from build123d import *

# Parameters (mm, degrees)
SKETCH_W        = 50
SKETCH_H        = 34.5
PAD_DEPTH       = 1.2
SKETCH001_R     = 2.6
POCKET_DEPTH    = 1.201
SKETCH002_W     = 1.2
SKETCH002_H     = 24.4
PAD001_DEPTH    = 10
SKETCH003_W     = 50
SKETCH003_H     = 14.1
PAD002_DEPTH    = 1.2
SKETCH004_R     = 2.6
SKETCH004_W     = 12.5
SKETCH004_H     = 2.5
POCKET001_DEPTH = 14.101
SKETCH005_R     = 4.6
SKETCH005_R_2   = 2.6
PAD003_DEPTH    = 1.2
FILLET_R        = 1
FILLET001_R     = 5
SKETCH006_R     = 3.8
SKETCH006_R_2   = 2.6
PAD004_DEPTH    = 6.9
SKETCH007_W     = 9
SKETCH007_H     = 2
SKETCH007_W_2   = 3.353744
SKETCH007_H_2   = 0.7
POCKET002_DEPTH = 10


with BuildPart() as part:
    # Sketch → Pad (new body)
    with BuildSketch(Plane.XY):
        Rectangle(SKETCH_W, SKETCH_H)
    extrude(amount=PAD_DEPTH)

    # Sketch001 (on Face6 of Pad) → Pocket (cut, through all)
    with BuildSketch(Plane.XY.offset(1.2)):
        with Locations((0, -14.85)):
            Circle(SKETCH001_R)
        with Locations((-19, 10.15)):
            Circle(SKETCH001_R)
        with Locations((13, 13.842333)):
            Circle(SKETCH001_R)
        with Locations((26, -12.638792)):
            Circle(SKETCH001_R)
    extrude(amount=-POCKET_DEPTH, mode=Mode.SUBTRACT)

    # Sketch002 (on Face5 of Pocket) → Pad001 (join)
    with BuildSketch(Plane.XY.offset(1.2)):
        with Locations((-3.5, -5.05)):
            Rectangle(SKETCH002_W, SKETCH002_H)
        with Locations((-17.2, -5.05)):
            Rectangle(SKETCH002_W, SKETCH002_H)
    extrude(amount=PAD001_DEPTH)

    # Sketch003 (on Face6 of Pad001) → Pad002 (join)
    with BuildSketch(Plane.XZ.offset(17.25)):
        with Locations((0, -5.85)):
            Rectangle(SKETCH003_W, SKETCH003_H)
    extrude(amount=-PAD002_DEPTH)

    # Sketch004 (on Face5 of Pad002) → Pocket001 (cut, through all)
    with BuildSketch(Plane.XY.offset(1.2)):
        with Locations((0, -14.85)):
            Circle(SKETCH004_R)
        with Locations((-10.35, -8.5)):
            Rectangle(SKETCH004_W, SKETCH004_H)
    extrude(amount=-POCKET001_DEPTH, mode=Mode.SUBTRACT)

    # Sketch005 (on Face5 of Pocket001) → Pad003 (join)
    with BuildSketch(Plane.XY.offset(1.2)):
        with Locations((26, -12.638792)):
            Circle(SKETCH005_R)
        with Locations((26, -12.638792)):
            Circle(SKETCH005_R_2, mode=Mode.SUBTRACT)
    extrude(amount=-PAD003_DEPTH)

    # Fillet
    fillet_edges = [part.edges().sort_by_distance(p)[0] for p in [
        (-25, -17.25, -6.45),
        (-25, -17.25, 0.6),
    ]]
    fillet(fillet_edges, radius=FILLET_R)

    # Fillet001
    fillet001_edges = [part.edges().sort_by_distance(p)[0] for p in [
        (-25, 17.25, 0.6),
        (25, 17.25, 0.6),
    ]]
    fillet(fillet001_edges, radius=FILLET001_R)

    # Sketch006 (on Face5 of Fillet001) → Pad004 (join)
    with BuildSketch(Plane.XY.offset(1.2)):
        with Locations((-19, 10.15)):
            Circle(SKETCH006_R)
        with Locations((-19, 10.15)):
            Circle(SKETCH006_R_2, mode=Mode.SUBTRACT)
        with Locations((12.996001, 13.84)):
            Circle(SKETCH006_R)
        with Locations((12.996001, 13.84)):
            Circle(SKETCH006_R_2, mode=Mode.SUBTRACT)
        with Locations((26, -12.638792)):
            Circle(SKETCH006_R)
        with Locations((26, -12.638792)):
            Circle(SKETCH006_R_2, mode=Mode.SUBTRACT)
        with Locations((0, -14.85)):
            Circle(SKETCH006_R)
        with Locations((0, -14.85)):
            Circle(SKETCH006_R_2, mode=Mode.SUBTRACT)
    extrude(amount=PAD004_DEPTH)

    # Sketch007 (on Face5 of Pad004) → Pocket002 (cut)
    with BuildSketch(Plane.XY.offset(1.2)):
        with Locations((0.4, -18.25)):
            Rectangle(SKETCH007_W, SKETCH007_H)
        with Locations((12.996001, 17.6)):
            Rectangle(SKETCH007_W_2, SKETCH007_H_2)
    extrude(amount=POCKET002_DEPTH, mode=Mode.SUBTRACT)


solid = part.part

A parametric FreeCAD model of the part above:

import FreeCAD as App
import Part
import Sketcher
Q = App.Units.Quantity


def edges_at(feature, points):
    """Names of the edges that pass closest to the given points."""
    edges = feature.Shape.Edges
    near = lambda p: min(range(len(edges)), key=lambda i: edges[i].distToShape(Part.Vertex(*p))[0])
    return sorted({f"Edge{near(p) + 1}" for p in points})


def add_polygon(sketch, points):
    """Adds a closed chain of lines whose ends are joined by coincident constraints."""
    first, n = sketch.GeometryCount, len(points)
    for a, b in zip(points, points[1:] + points[:1]):
        sketch.addGeometry(Part.LineSegment(App.Vector(*a, 0), App.Vector(*b, 0)), False)
    for i in range(n):
        sketch.addConstraint(Sketcher.Constraint("Coincident", first + i, 2, first + (i + 1) % n, 1))

doc = App.newDocument("Part")
body = doc.addObject("PartDesign::Body", "Body")

# Sketch on XY plane
sketch1 = doc.addObject("Sketcher::SketchObject", "Sketch")
body.addObject(sketch1)
sketch1.AttachmentSupport = (doc.XY_Plane, [""])
sketch1.MapMode = "FlatFace"
add_polygon(sketch1, [(-25, 17), (-25, -17), (25, -17), (25, 17)])  # lines 0-3
sketch1.addConstraint([
    Sketcher.Constraint("Vertical", 0),
    Sketcher.Constraint("Horizontal", 1),
    Sketcher.Constraint("Vertical", 2),
    Sketcher.Constraint("Horizontal", 3),
    Sketcher.Constraint("Symmetric", 0, 2, 2, 2, -1, 1),
    Sketcher.Constraint("DistanceX", 1, 1, 1, 2, Q("50 mm")),
    Sketcher.Constraint("DistanceY", 0, 2, 0, 1, Q("34.5 mm")),
])
pad1 = doc.addObject("PartDesign::Pad", "Pad")
body.addObject(pad1)
pad1.Profile = sketch1
pad1.Length = 1.2

# Sketch on XY plane
sketch2 = doc.addObject("Sketcher::SketchObject", "Sketch001")
body.addObject(sketch2)
sketch2.AttachmentSupport = (doc.XY_Plane, [""])
sketch2.MapMode = "FlatFace"
sketch2.AttachmentOffset = App.Placement(App.Vector(0, 0, 1.2), App.Rotation())
sketch2.addGeometry([
    Part.Circle(App.Vector(0, -14.8, 0), App.Vector(0, 0, 1), 2.6),
    Part.Circle(App.Vector(-19, 10.2, 0), App.Vector(0, 0, 1), 2.6),
    Part.Circle(App.Vector(13, 13.8, 0), App.Vector(0, 0, 1), 2.6),
    Part.Circle(App.Vector(26, -12.6, 0), App.Vector(0, 0, 1), 2.6),
], False)
sketch2.addConstraint([
    Sketcher.Constraint("Equal", 0, 1),
    Sketcher.Constraint("Equal", 1, 2),
    Sketcher.Constraint("Equal", 2, 3),
    Sketcher.Constraint("PointOnObject", 0, 3, -2),
    Sketcher.Constraint("Diameter", 0, Q("5.2 mm")),
    Sketcher.Constraint("DistanceX", 1, 3, -1, 1, Q("19 mm")),
    Sketcher.Constraint("DistanceX", -1, 1, 2, 3, Q("13 mm")),
    Sketcher.Constraint("DistanceX", -1, 1, 3, 3, Q("26 mm")),
    Sketcher.Constraint("DistanceY", 0, 3, 1, 3, Q("25 mm")),
    Sketcher.Constraint("DistanceY", 0, 3, -1, 1, Q("14.85 mm")),
    Sketcher.Constraint("DistanceY", -1, 1, 2, 3, Q("13.842333 mm")),
    Sketcher.Constraint("DistanceY", 3, 3, -1, 1, Q("12.638792 mm")),
])
pocket1 = doc.addObject("PartDesign::Pocket", "Pocket")
body.addObject(pocket1)
pocket1.Profile = sketch2
pocket1.Type = "ThroughAll"

# Sketch on XY plane
sketch3 = doc.addObject("Sketcher::SketchObject", "Sketch002")
body.addObject(sketch3)
sketch3.AttachmentSupport = (doc.XY_Plane, [""])
sketch3.MapMode = "FlatFace"
sketch3.AttachmentOffset = App.Placement(App.Vector(0, 0, 1.2), App.Rotation())
add_polygon(sketch3, [(-4.1, 7.2), (-4.1, -17.2), (-2.9, -17.2), (-2.9, 7.2)])  # lines 0-3
add_polygon(sketch3, [(-17.8, 7.2), (-17.8, -17.2), (-16.6, -17.2), (-16.6, 7.2)])  # lines 4-7
sketch3.addConstraint([
    Sketcher.Constraint("Vertical", 0),
    Sketcher.Constraint("Horizontal", 1),
    Sketcher.Constraint("Vertical", 2),
    Sketcher.Constraint("Horizontal", 3),
    Sketcher.Constraint("Vertical", 4),
    Sketcher.Constraint("Horizontal", 5),
    Sketcher.Constraint("Vertical", 6),
    Sketcher.Constraint("Horizontal", 7),
    Sketcher.Constraint("Horizontal", 1, 2, 4, 2),
    Sketcher.Constraint("Horizontal", 3, 2, 6, 2),
    Sketcher.Constraint("Equal", 3, 5),
    Sketcher.Constraint("DistanceX", 1, 1, 1, 2, Q("1.2 mm")),
    Sketcher.Constraint("DistanceY", 0, 2, 0, 1, Q("24.4 mm")),
    Sketcher.Constraint("DistanceX", 0, 2, -1, 1, Q("4.1 mm")),
    Sketcher.Constraint("DistanceX", 4, 2, -1, 1, Q("17.8 mm")),
    Sketcher.Constraint("DistanceY", 0, 2, -1, 1, Q("17.25 mm")),
])
pad2 = doc.addObject("PartDesign::Pad", "Pad001")
body.addObject(pad2)
pad2.Profile = sketch3
pad2.Length = 10

# Sketch on XZ plane
sketch4 = doc.addObject("Sketcher::SketchObject", "Sketch003")
body.addObject(sketch4)
sketch4.AttachmentSupport = (doc.XZ_Plane, [""])
sketch4.MapMode = "FlatFace"
sketch4.AttachmentOffset = App.Placement(App.Vector(0, 0, 17.25), App.Rotation())
add_polygon(sketch4, [(-25, 1), (-25, -13), (25, -13), (25, 1)])  # lines 0-3
sketch4.addConstraint([
    Sketcher.Constraint("Vertical", 0),
    Sketcher.Constraint("Horizontal", 1),
    Sketcher.Constraint("Vertical", 2),
    Sketcher.Constraint("Horizontal", 3),
    Sketcher.Constraint("DistanceX", 1, 1, 1, 2, Q("50 mm")),
    Sketcher.Constraint("DistanceY", 0, 2, 0, 1, Q("14.1 mm")),
    Sketcher.Constraint("DistanceX", 0, 2, -1, 1, Q("25 mm")),
    Sketcher.Constraint("DistanceY", 0, 2, -1, 1, Q("12.9 mm")),
])
pad3 = doc.addObject("PartDesign::Pad", "Pad002")
body.addObject(pad3)
pad3.Profile = sketch4
pad3.Length = 1.2
pad3.Reversed = True

# Sketch on XY plane
sketch5 = doc.addObject("Sketcher::SketchObject", "Sketch004")
body.addObject(sketch5)
sketch5.AttachmentSupport = (doc.XY_Plane, [""])
sketch5.MapMode = "FlatFace"
sketch5.AttachmentOffset = App.Placement(App.Vector(0, 0, 1.2), App.Rotation())
sketch5.addGeometry(Part.Circle(App.Vector(0, -14.8, 0), App.Vector(0, 0, 1), 2.6), False)  # 0
add_polygon(sketch5, [(-16.6, -7.2), (-16.6, -9.8), (-4.1, -9.8), (-4.1, -7.2)])  # lines 1-4
sketch5.addConstraint([
    Sketcher.Constraint("Vertical", 1),
    Sketcher.Constraint("Horizontal", 2),
    Sketcher.Constraint("Vertical", 3),
    Sketcher.Constraint("Horizontal", 4),
    Sketcher.Constraint("PointOnObject", 0, 3, -2),
    Sketcher.Constraint("Diameter", 0, Q("5.2 mm")),
    Sketcher.Constraint("DistanceX", 2, 1, 2, 2, Q("12.5 mm")),
    Sketcher.Constraint("DistanceY", 1, 2, 1, 1, Q("2.5 mm")),
    Sketcher.Constraint("DistanceX", 1, 2, -1, 1, Q("16.6 mm")),
    Sketcher.Constraint("DistanceY", 0, 3, 1, 2, Q("5.1 mm")),
    Sketcher.Constraint("DistanceY", 0, 3, -1, 1, Q("14.85 mm")),
])
pocket2 = doc.addObject("PartDesign::Pocket", "Pocket001")
body.addObject(pocket2)
pocket2.Profile = sketch5
pocket2.Type = "ThroughAll"

# Sketch on XY plane
sketch6 = doc.addObject("Sketcher::SketchObject", "Sketch005")
body.addObject(sketch6)
sketch6.AttachmentSupport = (doc.XY_Plane, [""])
sketch6.MapMode = "FlatFace"
sketch6.AttachmentOffset = App.Placement(App.Vector(0, 0, 1.2), App.Rotation())
sketch6.addGeometry([
    Part.Circle(App.Vector(26, -12.6, 0), App.Vector(0, 0, 1), 4.6),
    Part.Circle(App.Vector(26, -12.6, 0), App.Vector(0, 0, 1), 2.6),
], False)
sketch6.addConstraint([
    Sketcher.Constraint("Coincident", 1, 3, 0, 3),
    Sketcher.Constraint("Diameter", 0, Q("9.2 mm")),
    Sketcher.Constraint("Diameter", 1, Q("5.2 mm")),
    Sketcher.Constraint("DistanceX", -1, 1, 0, 3, Q("26 mm")),
    Sketcher.Constraint("DistanceY", 0, 3, -1, 1, Q("12.638792 mm")),
])
pad4 = doc.addObject("PartDesign::Pad", "Pad003")
body.addObject(pad4)
pad4.Profile = sketch6
pad4.Length = 1.2
pad4.Reversed = True
doc.recompute()

fillet = doc.addObject("PartDesign::Fillet", "Fillet")
body.addObject(fillet)
fillet.Base = (pad4, edges_at(pad4, [(-25, -17.25, -5.85), (-25, -17.25, -5.85)]))
fillet.Radius = 1
doc.recompute()

fillet2 = doc.addObject("PartDesign::Fillet", "Fillet001")
body.addObject(fillet2)
fillet2.Base = (fillet, edges_at(fillet, [(-25, 17.25, 0.6), (25, 17.25, 0.6)]))
fillet2.Radius = 5

# Sketch on XY plane
sketch7 = doc.addObject("Sketcher::SketchObject", "Sketch006")
body.addObject(sketch7)
sketch7.AttachmentSupport = (doc.XY_Plane, [""])
sketch7.MapMode = "FlatFace"
sketch7.AttachmentOffset = App.Placement(App.Vector(0, 0, 1.2), App.Rotation())
sketch7.addGeometry([
    Part.Circle(App.Vector(-19, 10.2, 0), App.Vector(0, 0, 1), 3.8),  # 0
    Part.Circle(App.Vector(-19, 10.2, 0), App.Vector(0, 0, 1), 2.6),  # 1
    Part.Circle(App.Vector(13, 13.8, 0), App.Vector(0, 0, 1), 3.8),  # 2
    Part.Circle(App.Vector(13, 13.8, 0), App.Vector(0, 0, 1), 2.6),  # 3
    Part.Circle(App.Vector(26, -12.6, 0), App.Vector(0, 0, 1), 3.8),  # 4
    Part.Circle(App.Vector(26, -12.6, 0), App.Vector(0, 0, 1), 2.6),  # 5
    Part.Circle(App.Vector(0, -14.8, 0), App.Vector(0, 0, 1), 3.8),  # 6
    Part.Circle(App.Vector(0, -14.8, 0), App.Vector(0, 0, 1), 2.6),  # 7
], False)
sketch7.addConstraint([
    Sketcher.Constraint("Coincident", 1, 3, 0, 3),
    Sketcher.Constraint("Coincident", 3, 3, 2, 3),
    Sketcher.Constraint("Coincident", 5, 3, 4, 3),
    Sketcher.Constraint("Coincident", 7, 3, 6, 3),
    Sketcher.Constraint("Equal", 0, 2),
    Sketcher.Constraint("Equal", 1, 3),
    Sketcher.Constraint("Equal", 2, 4),
    Sketcher.Constraint("Equal", 3, 5),
    Sketcher.Constraint("Equal", 4, 6),
    Sketcher.Constraint("Equal", 5, 7),
    Sketcher.Constraint("PointOnObject", 6, 3, -2),
    Sketcher.Constraint("Diameter", 0, Q("7.6 mm")),
    Sketcher.Constraint("Diameter", 1, Q("5.2 mm")),
    Sketcher.Constraint("DistanceX", 0, 3, -1, 1, Q("19 mm")),
    Sketcher.Constraint("DistanceX", -1, 1, 4, 3, Q("26 mm")),
    Sketcher.Constraint("DistanceY", 6, 3, 0, 3, Q("25 mm")),
    Sketcher.Constraint("DistanceY", -1, 1, 0, 3, Q("10.15 mm")),
    Sketcher.Constraint("DistanceY", -1, 1, 2, 3, Q("13.84 mm")),
    Sketcher.Constraint("DistanceX", -1, 1, 2, 3, Q("12.996001 mm")),
    Sketcher.Constraint("DistanceY", 4, 3, 2, 3, Q("26.478792 mm")),
])
pad5 = doc.addObject("PartDesign::Pad", "Pad004")
body.addObject(pad5)
pad5.Profile = sketch7
pad5.Length = 6.9

# Sketch on XY plane
sketch8 = doc.addObject("Sketcher::SketchObject", "Sketch007")
body.addObject(sketch8)
sketch8.AttachmentSupport = (doc.XY_Plane, [""])
sketch8.MapMode = "FlatFace"
sketch8.AttachmentOffset = App.Placement(App.Vector(0, 0, 1.2), App.Rotation())
add_polygon(sketch8, [(-4.1, -17.2), (-4.1, -19.2), (4.9, -19.2), (4.9, -17.2)])  # lines 0-3
add_polygon(sketch8, [(11.3, 17.9), (11.3, 17.2), (14.7, 17.2), (14.7, 17.9)])  # lines 4-7
sketch8.addConstraint([
    Sketcher.Constraint("Vertical", 0),
    Sketcher.Constraint("Horizontal", 1),
    Sketcher.Constraint("Vertical", 2),
    Sketcher.Constraint("Horizontal", 3),
    Sketcher.Constraint("Vertical", 4),
    Sketcher.Constraint("Horizontal", 5),
    Sketcher.Constraint("Vertical", 6),
    Sketcher.Constraint("Horizontal", 7),
    Sketcher.Constraint("DistanceX", 1, 1, 1, 2, Q("9 mm")),
    Sketcher.Constraint("DistanceY", 0, 2, 0, 1, Q("2 mm")),
    Sketcher.Constraint("DistanceY", 4, 2, 4, 1, Q("0.7 mm")),
    Sketcher.Constraint("DistanceX", 0, 2, -1, 1, Q("4.1 mm")),
    Sketcher.Constraint("DistanceY", 2, 2, 4, 2, Q("34.5 mm")),
    Sketcher.Constraint("DistanceY", 0, 2, -1, 1, Q("19.25 mm")),
    Sketcher.Constraint("DistanceX", 5, 1, 5, 2, Q("3.353744 mm")),
    Sketcher.Constraint("DistanceX", -1, 1, 4, 2, Q("11.319129 mm")),
])
pocket3 = doc.addObject("PartDesign::Pocket", "Pocket002")
body.addObject(pocket3)
pocket3.Profile = sketch8
pocket3.Length = 10
pocket3.Reversed = True

doc.recompute()
